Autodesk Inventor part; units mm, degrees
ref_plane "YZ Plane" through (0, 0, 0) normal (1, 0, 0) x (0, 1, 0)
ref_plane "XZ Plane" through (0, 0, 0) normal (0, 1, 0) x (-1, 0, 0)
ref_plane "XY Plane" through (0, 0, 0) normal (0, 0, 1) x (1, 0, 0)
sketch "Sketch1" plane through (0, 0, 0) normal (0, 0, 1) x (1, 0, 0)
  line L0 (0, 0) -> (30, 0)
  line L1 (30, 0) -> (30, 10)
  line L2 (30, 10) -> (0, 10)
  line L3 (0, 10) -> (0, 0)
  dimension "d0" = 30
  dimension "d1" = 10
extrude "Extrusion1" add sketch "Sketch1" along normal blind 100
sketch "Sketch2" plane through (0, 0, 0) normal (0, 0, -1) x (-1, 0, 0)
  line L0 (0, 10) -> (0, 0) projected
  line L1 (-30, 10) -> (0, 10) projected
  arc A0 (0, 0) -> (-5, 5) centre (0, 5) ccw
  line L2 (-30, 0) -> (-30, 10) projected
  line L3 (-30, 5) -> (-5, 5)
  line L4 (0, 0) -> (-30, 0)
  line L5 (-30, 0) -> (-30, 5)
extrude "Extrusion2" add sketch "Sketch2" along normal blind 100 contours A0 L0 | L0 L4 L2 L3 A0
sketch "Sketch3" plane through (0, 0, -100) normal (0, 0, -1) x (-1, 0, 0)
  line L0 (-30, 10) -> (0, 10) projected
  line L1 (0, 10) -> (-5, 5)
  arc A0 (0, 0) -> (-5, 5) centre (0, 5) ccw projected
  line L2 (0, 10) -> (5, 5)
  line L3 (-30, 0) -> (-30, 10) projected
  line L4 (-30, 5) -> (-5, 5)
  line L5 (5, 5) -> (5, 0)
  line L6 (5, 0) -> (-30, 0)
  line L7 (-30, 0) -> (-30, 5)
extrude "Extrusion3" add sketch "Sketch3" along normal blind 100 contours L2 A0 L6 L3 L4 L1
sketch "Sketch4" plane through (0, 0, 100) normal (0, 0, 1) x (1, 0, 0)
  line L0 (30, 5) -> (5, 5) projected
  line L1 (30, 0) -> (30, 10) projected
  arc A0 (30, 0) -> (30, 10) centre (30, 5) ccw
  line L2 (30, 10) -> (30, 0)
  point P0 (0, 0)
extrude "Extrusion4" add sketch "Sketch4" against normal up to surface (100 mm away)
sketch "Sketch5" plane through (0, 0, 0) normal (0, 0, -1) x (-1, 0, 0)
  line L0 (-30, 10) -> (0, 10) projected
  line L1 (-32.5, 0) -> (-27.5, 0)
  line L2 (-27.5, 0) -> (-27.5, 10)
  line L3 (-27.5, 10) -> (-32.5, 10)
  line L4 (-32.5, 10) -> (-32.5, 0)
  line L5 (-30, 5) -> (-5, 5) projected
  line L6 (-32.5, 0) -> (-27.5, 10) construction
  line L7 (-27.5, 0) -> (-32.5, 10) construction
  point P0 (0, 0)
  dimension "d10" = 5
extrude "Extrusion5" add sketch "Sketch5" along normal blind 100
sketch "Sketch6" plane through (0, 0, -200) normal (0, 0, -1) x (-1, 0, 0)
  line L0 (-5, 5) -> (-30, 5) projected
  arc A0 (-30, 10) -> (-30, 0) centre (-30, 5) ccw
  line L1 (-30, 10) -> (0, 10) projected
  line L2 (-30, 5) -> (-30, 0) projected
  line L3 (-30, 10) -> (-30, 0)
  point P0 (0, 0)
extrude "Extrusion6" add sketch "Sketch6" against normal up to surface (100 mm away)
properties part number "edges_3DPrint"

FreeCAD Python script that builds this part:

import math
import FreeCAD as App
import Part
import Sketcher

V = App.Vector


def add_polygon(sketch, points):
    """Adds a closed chain of lines whose ends are joined by coincident constraints."""
    first, n = sketch.GeometryCount, len(points)
    for a, b in zip(points, points[1:] + points[:1]):
        sketch.addGeometry(Part.LineSegment(App.Vector(*a, 0), App.Vector(*b, 0)), False)
    for i in range(n):
        sketch.addConstraint(Sketcher.Constraint("Coincident", first + i, 2, first + (i + 1) % n, 1))

doc = App.newDocument("Part")
body = doc.addObject("PartDesign::Body", "Body")

# Sketch on XY plane
sketch1 = body.newObject("Sketcher::SketchObject", "Sketch")
sketch1.AttachmentSupport = (doc.getObject("XY_Plane"), [""])
sketch1.MapMode = "FlatFace"
add_polygon(sketch1, [(0, 10), (0, 0), (30, 0), (30, 10)])  # lines 0-3
sketch1.addConstraint(Sketcher.Constraint("Vertical", 0))
sketch1.addConstraint(Sketcher.Constraint("Horizontal", 1))
sketch1.addConstraint(Sketcher.Constraint("Vertical", 2))
sketch1.addConstraint(Sketcher.Constraint("Horizontal", 3))
sketch1.addConstraint(Sketcher.Constraint("Coincident", 0, 2, -1, 1))
sketch1.addConstraint(Sketcher.Constraint("DistanceX", 1, 1, 1, 2, 30.0))
sketch1.addConstraint(Sketcher.Constraint("DistanceY", 0, 2, 0, 1, 10.0))
pad1 = body.newObject("PartDesign::Pad", "Pad")
pad1.Profile = sketch1
pad1.Length = 100

# Sketch on XY plane
sketch2 = body.newObject("Sketcher::SketchObject", "Sketch001")
sketch2.AttachmentSupport = (doc.getObject("XY_Plane"), [""])
sketch2.MapMode = "FlatFace"
sketch2.addGeometry(Part.ArcOfCircle(Part.Circle(V(0, 5, 0), V(0, 0, 1), 5), math.radians(0), math.radians(270)), False)
sketch2.addGeometry(Part.LineSegment(V(5, 5, 0), V(30, 5, 0)), False)
sketch2.addGeometry(Part.LineSegment(V(30, 5, 0), V(30, 0, 0)), False)
sketch2.addGeometry(Part.LineSegment(V(30, 0, 0), V(0, 0, 0)), False)
sketch2.addConstraint(Sketcher.Constraint("Coincident", 0, 1, 1, 1))
sketch2.addConstraint(Sketcher.Constraint("Coincident", 1, 2, 2, 1))
sketch2.addConstraint(Sketcher.Constraint("Coincident", 2, 2, 3, 1))
sketch2.addConstraint(Sketcher.Constraint("Tangent", 3, 2, 0, 2))
sketch2.addConstraint(Sketcher.Constraint("Horizontal", 1))
sketch2.addConstraint(Sketcher.Constraint("Vertical", 2))
sketch2.addConstraint(Sketcher.Constraint("Horizontal", 3))
sketch2.addConstraint(Sketcher.Constraint("Coincident", 3, 2, -1, 1))
sketch2.addConstraint(Sketcher.Constraint("Radius", 0, 5.0))
sketch2.addConstraint(Sketcher.Constraint("DistanceX", 1, 1, 1, 2, 25.0))
sketch2.addConstraint(Sketcher.Constraint("DistanceY", 2, 2, 2, 1, 5.0))
pad2 = body.newObject("PartDesign::Pad", "Pad001")
pad2.Profile = sketch2
pad2.Length = 100
pad2.Reversed = True

# Sketch on XY plane
sketch3 = body.newObject("Sketcher::SketchObject", "Sketch002")
sketch3.AttachmentSupport = (doc.getObject("XY_Plane"), [""])
sketch3.MapMode = "FlatFace"
sketch3.AttachmentOffset = App.Placement(V(0, 0, -100), App.Rotation())
sketch3.addGeometry(Part.LineSegment(V(-5, 5, 0), V(0, 10, 0)), False)
sketch3.addGeometry(Part.LineSegment(V(0, 10, 0), V(5, 5, 0)), False)
sketch3.addGeometry(Part.LineSegment(V(5, 5, 0), V(30, 5, 0)), False)
sketch3.addGeometry(Part.LineSegment(V(30, 5, 0), V(30, 0, 0)), False)
sketch3.addGeometry(Part.LineSegment(V(30, 0, 0), V(0, 0, 0)), False)
sketch3.addGeometry(Part.ArcOfCircle(Part.Circle(V(0, 5, 0), V(0, 0, 1), 5), math.radians(180), math.radians(270)), False)
sketch3.addConstraint(Sketcher.Constraint("Coincident", 0, 2, 1, 1))
sketch3.addConstraint(Sketcher.Constraint("Coincident", 1, 2, 2, 1))
sketch3.addConstraint(Sketcher.Constraint("Coincident", 2, 2, 3, 1))
sketch3.addConstraint(Sketcher.Constraint("Coincident", 3, 2, 4, 1))
sketch3.addConstraint(Sketcher.Constraint("Tangent", 4, 2, 5, 2))
sketch3.addConstraint(Sketcher.Constraint("Coincident", 5, 1, 0, 1))
sketch3.addConstraint(Sketcher.Constraint("Horizontal", 2))
sketch3.addConstraint(Sketcher.Constraint("Vertical", 3))
sketch3.addConstraint(Sketcher.Constraint("Horizontal", 4))
sketch3.addConstraint(Sketcher.Constraint("Coincident", 4, 2, -1, 1))
sketch3.addConstraint(Sketcher.Constraint("Symmetric", 1, 2, 5, 1, -2))
sketch3.addConstraint(Sketcher.Constraint("PointOnObject", 0, 2, -2))
sketch3.addConstraint(Sketcher.Constraint("Perpendicular", 0, 1))
sketch3.addConstraint(Sketcher.Constraint("Horizontal", 5, 3, 1, 2))
sketch3.addConstraint(Sketcher.Constraint("Radius", 5, 5.0))
sketch3.addConstraint(Sketcher.Constraint("DistanceX", 2, 1, 2, 2, 25.0))
pad3 = body.newObject("PartDesign::Pad", "Pad002")
pad3.Profile = sketch3
pad3.Length = 100
pad3.Reversed = True

# Sketch on XY plane
sketch4 = body.newObject("Sketcher::SketchObject", "Sketch003")
sketch4.AttachmentSupport = (doc.getObject("XY_Plane"), [""])
sketch4.MapMode = "FlatFace"
sketch4.AttachmentOffset = App.Placement(V(0, 0, 100), App.Rotation())
sketch4.addGeometry(Part.LineSegment(V(30, 10, 0), V(30, 0, 0)), False)
sketch4.addGeometry(Part.ArcOfCircle(Part.Circle(V(30, 5, 0), V(0, 0, 1), 5), math.radians(-90), math.radians(90)), False)
sketch4.addConstraint(Sketcher.Constraint("Coincident", 0, 1, 1, 2))
sketch4.addConstraint(Sketcher.Constraint("Coincident", 1, 1, 0, 2))
sketch4.addConstraint(Sketcher.Constraint("Vertical", 0))
sketch4.addConstraint(Sketcher.Constraint("PointOnObject", 1, 1, -1))
sketch4.addConstraint(Sketcher.Constraint("Vertical", 1, 3, 0, 1))
sketch4.addConstraint(Sketcher.Constraint("Radius", 1, 5.0))
sketch4.addConstraint(Sketcher.Constraint("DistanceX", -1, 1, 1, 3, 30.0))
pad4 = body.newObject("PartDesign::Pad", "Pad003")
pad4.Profile = sketch4
pad4.Length = 100
pad4.Reversed = True

# Sketch on XY plane
sketch5 = body.newObject("Sketcher::SketchObject", "Sketch004")
sketch5.AttachmentSupport = (doc.getObject("XY_Plane"), [""])
sketch5.MapMode = "FlatFace"
add_polygon(sketch5, [(28, 10), (32, 10), (32, 0), (28, 0)])  # lines 0-3
sketch5.addConstraint(Sketcher.Constraint("Horizontal", 0))
sketch5.addConstraint(Sketcher.Constraint("Vertical", 1))
sketch5.addConstraint(Sketcher.Constraint("Horizontal", 2))
sketch5.addConstraint(Sketcher.Constraint("Vertical", 3))
sketch5.addConstraint(Sketcher.Constraint("PointOnObject", 1, 2, -1))
sketch5.addConstraint(Sketcher.Constraint("DistanceX", 0, 1, 0, 2, 5.0))
sketch5.addConstraint(Sketcher.Constraint("DistanceY", 1, 2, 1, 1, 10.0))
sketch5.addConstraint(Sketcher.Constraint("DistanceX", -1, 1, 0, 2, 32.5))
pad5 = body.newObject("PartDesign::Pad", "Pad004")
pad5.Profile = sketch5
pad5.Length = 100
pad5.Reversed = True

# Sketch on XY plane
sketch6 = body.newObject("Sketcher::SketchObject", "Sketch005")
sketch6.AttachmentSupport = (doc.getObject("XY_Plane"), [""])
sketch6.MapMode = "FlatFace"
sketch6.AttachmentOffset = App.Placement(V(0, 0, -200), App.Rotation())
sketch6.addGeometry(Part.LineSegment(V(30, 0, 0), V(30, 10, 0)), False)
sketch6.addGeometry(Part.ArcOfCircle(Part.Circle(V(30, 5, 0), V(0, 0, 1), 5), math.radians(-90), math.radians(90)), False)
sketch6.addConstraint(Sketcher.Constraint("Coincident", 0, 1, 1, 1))
sketch6.addConstraint(Sketcher.Constraint("Coincident", 1, 2, 0, 2))
sketch6.addConstraint(Sketcher.Constraint("Vertical", 0))
sketch6.addConstraint(Sketcher.Constraint("PointOnObject", 0, 1, -1))
sketch6.addConstraint(Sketcher.Constraint("Vertical", 1, 3, 0, 1))
sketch6.addConstraint(Sketcher.Constraint("Radius", 1, 5.0))
sketch6.addConstraint(Sketcher.Constraint("DistanceX", -1, 1, 1, 3, 30.0))
pad6 = body.newObject("PartDesign::Pad", "Pad005")
pad6.Profile = sketch6
pad6.Length = 100

doc.recompute()
